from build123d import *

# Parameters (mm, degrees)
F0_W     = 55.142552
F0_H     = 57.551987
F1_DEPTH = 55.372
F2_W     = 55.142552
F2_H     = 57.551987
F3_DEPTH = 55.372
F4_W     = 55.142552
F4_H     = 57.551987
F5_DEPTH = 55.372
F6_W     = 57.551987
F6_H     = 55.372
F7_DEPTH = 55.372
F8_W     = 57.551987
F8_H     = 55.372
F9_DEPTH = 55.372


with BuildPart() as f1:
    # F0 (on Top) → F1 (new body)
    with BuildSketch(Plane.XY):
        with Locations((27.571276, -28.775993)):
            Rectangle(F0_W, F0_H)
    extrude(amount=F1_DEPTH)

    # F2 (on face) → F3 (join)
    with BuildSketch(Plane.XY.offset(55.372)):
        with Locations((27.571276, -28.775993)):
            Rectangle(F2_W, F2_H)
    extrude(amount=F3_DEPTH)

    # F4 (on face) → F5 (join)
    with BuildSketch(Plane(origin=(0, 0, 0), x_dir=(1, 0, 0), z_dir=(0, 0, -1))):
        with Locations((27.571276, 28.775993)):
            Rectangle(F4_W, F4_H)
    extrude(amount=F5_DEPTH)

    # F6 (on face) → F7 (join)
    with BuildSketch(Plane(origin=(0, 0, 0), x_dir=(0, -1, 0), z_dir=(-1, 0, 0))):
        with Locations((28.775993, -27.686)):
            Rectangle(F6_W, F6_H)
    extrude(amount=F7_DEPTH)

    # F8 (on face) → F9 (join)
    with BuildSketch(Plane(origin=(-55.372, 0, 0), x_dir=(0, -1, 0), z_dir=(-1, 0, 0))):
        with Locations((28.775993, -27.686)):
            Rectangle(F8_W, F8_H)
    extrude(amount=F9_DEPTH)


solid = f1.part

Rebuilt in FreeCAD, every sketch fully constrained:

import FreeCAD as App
import Part
import Sketcher
from FreeCAD import Vector
Q = App.Units.Quantity

doc = App.newDocument("Part")
params = doc.addObject("Spreadsheet::Sheet", "Params")
for row, (alias, value) in enumerate([
    ("pad1_length", "2.18 in"),
    ("pad2_length", "2.18 in"),
    ("pad3_length", "2.18 in"),
    ("sketch4_height", "2.18 in"),
    ("pad4_length", "2.18 in"),
    ("sketch5_height", "2.18 in"),
    ("pad5_length", "2.18 in"),
], start=1):
    params.set(f"A{row}", alias)
    params.set(f"B{row}", "=" + value)
    params.setAlias(f"B{row}", alias)

body = doc.addObject("PartDesign::Body", "Body")

# Sketch on XY plane
sketch1 = body.newObject("Sketcher::SketchObject", "Sketch")
sketch1.AttachmentSupport = (doc.getObject("XY_Plane"), [""])
sketch1.MapMode = "FlatFace"
sketch1.addGeometry([
    Part.LineSegment(Vector(0, 0, 0), Vector(0, -58, 0)),
    Part.LineSegment(Vector(0, -58, 0), Vector(55, -58, 0)),
    Part.LineSegment(Vector(55, -58, 0), Vector(55, 0, 0)),
    Part.LineSegment(Vector(55, 0, 0), Vector(0, 0, 0)),
], False)
sketch1.addConstraint([
    Sketcher.Constraint("Coincident", 0, 2, 1, 1),
    Sketcher.Constraint("Coincident", 1, 2, 2, 1),
    Sketcher.Constraint("Coincident", 2, 2, 3, 1),
    Sketcher.Constraint("Coincident", 3, 2, 0, 1),
    Sketcher.Constraint("Vertical", 0),
    Sketcher.Constraint("Horizontal", 1),
    Sketcher.Constraint("Vertical", 2),
    Sketcher.Constraint("Horizontal", 3),
    Sketcher.Constraint("Coincident", 3, 2, -1, 1),
    Sketcher.Constraint("DistanceX", 1, 1, 1, 2, 55.142552),
    Sketcher.Constraint("DistanceY", 0, 2, 0, 1, 57.551987),
])
pad1 = body.newObject("PartDesign::Pad", "Pad")
pad1.Profile = sketch1
pad1.setExpression("Length", "Params.pad1_length")

# Sketch on XY plane
sketch2 = body.newObject("Sketcher::SketchObject", "Sketch001")
sketch2.AttachmentSupport = (doc.getObject("XY_Plane"), [""])
sketch2.MapMode = "FlatFace"
sketch2.AttachmentOffset = App.Placement(Vector(0, 0, 2.18 * 25.4), App.Rotation())
sketch2.addGeometry([
    Part.LineSegment(Vector(0, 0, 0), Vector(0, -58, 0)),
    Part.LineSegment(Vector(0, -58, 0), Vector(55, -58, 0)),
    Part.LineSegment(Vector(55, -58, 0), Vector(55, 0, 0)),
    Part.LineSegment(Vector(55, 0, 0), Vector(0, 0, 0)),
], False)
sketch2.addConstraint([
    Sketcher.Constraint("Coincident", 0, 2, 1, 1),
    Sketcher.Constraint("Coincident", 1, 2, 2, 1),
    Sketcher.Constraint("Coincident", 2, 2, 3, 1),
    Sketcher.Constraint("Coincident", 3, 2, 0, 1),
    Sketcher.Constraint("Vertical", 0),
    Sketcher.Constraint("Horizontal", 1),
    Sketcher.Constraint("Vertical", 2),
    Sketcher.Constraint("Horizontal", 3),
    Sketcher.Constraint("Coincident", 3, 2, -1, 1),
    Sketcher.Constraint("DistanceX", 1, 1, 1, 2, 55.142552),
    Sketcher.Constraint("DistanceY", 0, 2, 0, 1, 57.551987),
])
pad2 = body.newObject("PartDesign::Pad", "Pad001")
pad2.Profile = sketch2
pad2.setExpression("Length", "Params.pad2_length")

# Sketch on XY plane
sketch3 = body.newObject("Sketcher::SketchObject", "Sketch002")
sketch3.AttachmentSupport = (doc.getObject("XY_Plane"), [""])
sketch3.MapMode = "FlatFace"
sketch3.addGeometry([
    Part.LineSegment(Vector(0, -58, 0), Vector(0, 0, 0)),
    Part.LineSegment(Vector(0, 0, 0), Vector(55, 0, 0)),
    Part.LineSegment(Vector(55, 0, 0), Vector(55, -58, 0)),
    Part.LineSegment(Vector(55, -58, 0), Vector(0, -58, 0)),
], False)
sketch3.addConstraint([
    Sketcher.Constraint("Coincident", 0, 2, 1, 1),
    Sketcher.Constraint("Coincident", 1, 2, 2, 1),
    Sketcher.Constraint("Coincident", 2, 2, 3, 1),
    Sketcher.Constraint("Coincident", 3, 2, 0, 1),
    Sketcher.Constraint("Vertical", 0),
    Sketcher.Constraint("Horizontal", 1),
    Sketcher.Constraint("Vertical", 2),
    Sketcher.Constraint("Horizontal", 3),
    Sketcher.Constraint("Coincident", 0, 2, -1, 1),
    Sketcher.Constraint("DistanceX", 1, 1, 1, 2, 55.142552),
    Sketcher.Constraint("DistanceY", 0, 1, 0, 2, 57.551987),
])
pad3 = body.newObject("PartDesign::Pad", "Pad002")
pad3.Profile = sketch3
pad3.setExpression("Length", "Params.pad3_length")
pad3.Reversed = True

# Sketch on YZ plane
sketch4 = body.newObject("Sketcher::SketchObject", "Sketch003")
sketch4.AttachmentSupport = (doc.getObject("YZ_Plane"), [""])
sketch4.MapMode = "FlatFace"
sketch4.addGeometry([
    Part.LineSegment(Vector(0, 0, 0), Vector(0, -55, 0)),
    Part.LineSegment(Vector(0, -55, 0), Vector(-58, -55, 0)),
    Part.LineSegment(Vector(-58, -55, 0), Vector(-58, 0, 0)),
    Part.LineSegment(Vector(-58, 0, 0), Vector(0, 0, 0)),
], False)
sketch4.addConstraint([
    Sketcher.Constraint("Coincident", 0, 2, 1, 1),
    Sketcher.Constraint("Coincident", 1, 2, 2, 1),
    Sketcher.Constraint("Coincident", 2, 2, 3, 1),
    Sketcher.Constraint("Coincident", 3, 2, 0, 1),
    Sketcher.Constraint("Vertical", 0),
    Sketcher.Constraint("Horizontal", 1),
    Sketcher.Constraint("Vertical", 2),
    Sketcher.Constraint("Horizontal", 3),
    Sketcher.Constraint("Coincident", 3, 2, -1, 1),
    Sketcher.Constraint("DistanceY", 0, 2, 0, 1, Q("2.18 in")),
    Sketcher.Constraint("DistanceX", 1, 2, 1, 1, 57.551987),
])
sketch4.setExpression("Constraints[9]", "Params.sketch4_height")
pad4 = body.newObject("PartDesign::Pad", "Pad003")
pad4.Profile = sketch4
pad4.setExpression("Length", "Params.pad4_length")
pad4.Reversed = True

# Sketch on YZ plane
sketch5 = body.newObject("Sketcher::SketchObject", "Sketch004")
sketch5.AttachmentSupport = (doc.getObject("YZ_Plane"), [""])
sketch5.MapMode = "FlatFace"
sketch5.AttachmentOffset = App.Placement(Vector(0, 0, -2.18 * 25.4), App.Rotation())
sketch5.addGeometry([
    Part.LineSegment(Vector(0, 0, 0), Vector(0, -55, 0)),
    Part.LineSegment(Vector(0, -55, 0), Vector(-58, -55, 0)),
    Part.LineSegment(Vector(-58, -55, 0), Vector(-58, 0, 0)),
    Part.LineSegment(Vector(-58, 0, 0), Vector(0, 0, 0)),
], False)
sketch5.addConstraint([
    Sketcher.Constraint("Coincident", 0, 2, 1, 1),
    Sketcher.Constraint("Coincident", 1, 2, 2, 1),
    Sketcher.Constraint("Coincident", 2, 2, 3, 1),
    Sketcher.Constraint("Coincident", 3, 2, 0, 1),
    Sketcher.Constraint("Vertical", 0),
    Sketcher.Constraint("Horizontal", 1),
    Sketcher.Constraint("Vertical", 2),
    Sketcher.Constraint("Horizontal", 3),
    Sketcher.Constraint("Coincident", 3, 2, -1, 1),
    Sketcher.Constraint("DistanceY", 0, 2, 0, 1, Q("2.18 in")),
    Sketcher.Constraint("DistanceX", 1, 2, 1, 1, 57.551987),
])
sketch5.setExpression("Constraints[9]", "Params.sketch5_height")
pad5 = body.newObject("PartDesign::Pad", "Pad004")
pad5.Profile = sketch5
pad5.setExpression("Length", "Params.pad5_length")
pad5.Reversed = True

doc.recompute()
